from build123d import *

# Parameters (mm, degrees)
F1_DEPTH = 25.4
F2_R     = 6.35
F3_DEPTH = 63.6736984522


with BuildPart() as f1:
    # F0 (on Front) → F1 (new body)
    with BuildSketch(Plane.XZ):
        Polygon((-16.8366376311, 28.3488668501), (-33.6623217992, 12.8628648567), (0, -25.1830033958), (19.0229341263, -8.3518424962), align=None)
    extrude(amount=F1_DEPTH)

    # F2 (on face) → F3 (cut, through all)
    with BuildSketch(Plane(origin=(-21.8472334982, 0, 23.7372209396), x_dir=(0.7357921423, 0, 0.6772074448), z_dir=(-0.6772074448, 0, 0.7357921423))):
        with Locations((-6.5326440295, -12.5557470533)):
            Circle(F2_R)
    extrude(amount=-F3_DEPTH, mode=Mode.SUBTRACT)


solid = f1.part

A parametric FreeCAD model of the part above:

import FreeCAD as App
import Part
import Sketcher

V = App.Vector
Q = App.Units.Quantity

doc = App.newDocument("Part")
params = doc.addObject("Spreadsheet::Sheet", "Params")
for row, (alias, value) in enumerate([
    ("sketch1_length", "2 in"),
    ("sketch1_length2", "1 in"),
    ("pad1_length", "1 in"),
    ("sketch2_diameter", "0.5 in"),
], start=1):
    params.set(f"A{row}", alias)
    params.set(f"B{row}", "=" + value)
    params.setAlias(f"B{row}", alias)

body = doc.addObject("PartDesign::Body", "Body")

# Sketch on XZ plane
sketch1 = body.newObject("Sketcher::SketchObject", "Sketch")
sketch1.AttachmentSupport = (doc.getObject("XZ_Plane"), [""])
sketch1.MapMode = "FlatFace"
sketch1.addGeometry(Part.LineSegment(V(-16.836638, 28.348867, 0), V(-33.662322, 12.862865, 0)), False)
sketch1.addGeometry(Part.LineSegment(V(-33.662322, 12.862865, 0), V(0, -25.183003, 0)), False)
sketch1.addGeometry(Part.LineSegment(V(0, -25.183003, 0), V(19.022934, -8.351842, 0)), False)
sketch1.addGeometry(Part.LineSegment(V(19.022934, -8.351842, 0), V(-16.836638, 28.348867, 0)), False)
sketch1.addConstraint(Sketcher.Constraint("Coincident", 0, 2, 1, 1))
sketch1.addConstraint(Sketcher.Constraint("Coincident", 1, 2, 2, 1))
sketch1.addConstraint(Sketcher.Constraint("Coincident", 2, 2, 3, 1))
sketch1.addConstraint(Sketcher.Constraint("Coincident", 3, 2, 0, 1))
sketch1.addConstraint(Sketcher.Constraint("PointOnObject", 1, 2, -2))
sketch1.addConstraint(Sketcher.Constraint("Perpendicular", 1, 2))
sketch1.addConstraint(Sketcher.Constraint("Distance", 1, Q("2 in")))
sketch1.addConstraint(Sketcher.Constraint("Distance", 2, Q("1 in")))
sketch1.addConstraint(Sketcher.Constraint("DistanceY", 0, 2, 3, 2, Q("15.486002 mm")))
sketch1.addConstraint(Sketcher.Constraint("DistanceX", 0, 2, -1, 1, Q("33.662322 mm")))
sketch1.addConstraint(Sketcher.Constraint("DistanceX", 3, 2, 2, 2, Q("35.859572 mm")))
sketch1.addConstraint(Sketcher.Constraint("DistanceY", -1, 1, 0, 2, Q("12.862865 mm")))
sketch1.setExpression("Constraints[6]", "Params.sketch1_length")
sketch1.setExpression("Constraints[7]", "Params.sketch1_length2")
pad1 = body.newObject("PartDesign::Pad", "Pad")
pad1.Profile = sketch1
pad1.setExpression("Length", "Params.pad1_length")

# Sketch on an angled plane
sketch2 = body.newObject("Sketcher::SketchObject", "Sketch001")
sketch2.Placement = App.Placement(V(-21.847233, 0, 23.737221), App.Rotation(V(0.735792142, 0, 0.677207445), V(0, 1, 0), V(-0.677207445, 0, 0.735792142), "ZXY"))
sketch2.addGeometry(Part.Circle(V(-6.532644, -12.555747, 0), V(0, 0, 1), 6.35), False)
sketch2.addConstraint(Sketcher.Constraint("Diameter", 0, Q("0.5 in")))
sketch2.addConstraint(Sketcher.Constraint("DistanceX", 0, 3, -1, 1, Q("6.532644 mm")))
sketch2.addConstraint(Sketcher.Constraint("DistanceY", 0, 3, -1, 1, Q("12.555747 mm")))
sketch2.setExpression("Constraints[0]", "Params.sketch2_diameter")
pocket1 = body.newObject("PartDesign::Pocket", "Pocket")
pocket1.Profile = sketch2
pocket1.Type = "ThroughAll"

doc.recompute()
